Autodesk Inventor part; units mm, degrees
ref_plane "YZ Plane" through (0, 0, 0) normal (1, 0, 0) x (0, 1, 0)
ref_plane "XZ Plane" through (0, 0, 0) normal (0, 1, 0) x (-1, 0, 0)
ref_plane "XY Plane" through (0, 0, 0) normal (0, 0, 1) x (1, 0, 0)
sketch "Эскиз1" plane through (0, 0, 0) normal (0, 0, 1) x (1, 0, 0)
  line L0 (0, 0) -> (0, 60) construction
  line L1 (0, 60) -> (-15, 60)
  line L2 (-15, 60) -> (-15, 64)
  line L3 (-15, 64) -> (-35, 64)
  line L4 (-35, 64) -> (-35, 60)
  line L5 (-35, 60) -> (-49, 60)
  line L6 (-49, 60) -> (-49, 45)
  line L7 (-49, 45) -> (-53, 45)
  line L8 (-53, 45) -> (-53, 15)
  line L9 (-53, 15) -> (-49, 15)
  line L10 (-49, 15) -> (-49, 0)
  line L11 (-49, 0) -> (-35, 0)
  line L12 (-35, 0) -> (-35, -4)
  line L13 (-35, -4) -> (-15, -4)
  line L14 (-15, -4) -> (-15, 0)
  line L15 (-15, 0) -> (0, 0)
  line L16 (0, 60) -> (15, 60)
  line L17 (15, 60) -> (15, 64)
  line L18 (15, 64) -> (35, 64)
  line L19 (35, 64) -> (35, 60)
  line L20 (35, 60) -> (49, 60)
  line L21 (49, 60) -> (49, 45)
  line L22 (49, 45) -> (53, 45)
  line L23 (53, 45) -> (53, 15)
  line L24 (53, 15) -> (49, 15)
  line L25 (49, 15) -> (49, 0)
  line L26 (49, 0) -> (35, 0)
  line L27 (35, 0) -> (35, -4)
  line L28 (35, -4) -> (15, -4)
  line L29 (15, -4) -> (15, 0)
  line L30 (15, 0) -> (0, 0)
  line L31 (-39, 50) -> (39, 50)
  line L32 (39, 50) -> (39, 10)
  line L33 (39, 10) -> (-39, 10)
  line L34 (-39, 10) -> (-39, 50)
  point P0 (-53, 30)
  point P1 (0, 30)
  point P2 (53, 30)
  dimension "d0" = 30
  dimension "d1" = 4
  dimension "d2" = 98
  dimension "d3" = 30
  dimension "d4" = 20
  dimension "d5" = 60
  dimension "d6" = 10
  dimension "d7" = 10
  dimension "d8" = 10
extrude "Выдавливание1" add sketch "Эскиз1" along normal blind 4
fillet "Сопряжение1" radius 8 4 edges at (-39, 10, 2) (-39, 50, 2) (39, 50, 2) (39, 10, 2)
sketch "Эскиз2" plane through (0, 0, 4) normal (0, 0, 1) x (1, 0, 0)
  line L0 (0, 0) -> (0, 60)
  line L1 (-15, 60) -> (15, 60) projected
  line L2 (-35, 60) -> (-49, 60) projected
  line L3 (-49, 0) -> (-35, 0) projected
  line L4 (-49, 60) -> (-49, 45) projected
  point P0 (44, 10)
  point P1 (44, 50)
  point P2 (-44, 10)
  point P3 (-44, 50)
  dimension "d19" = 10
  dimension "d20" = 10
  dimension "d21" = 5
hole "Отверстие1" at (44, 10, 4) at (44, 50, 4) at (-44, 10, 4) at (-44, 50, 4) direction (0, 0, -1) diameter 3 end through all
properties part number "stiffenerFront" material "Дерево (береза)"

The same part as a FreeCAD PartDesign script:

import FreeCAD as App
import Part
import Sketcher
from FreeCAD import Vector


def edges_at(feature, points):
    """Names of the edges that pass closest to the given points."""
    edges = feature.Shape.Edges
    near = lambda p: min(range(len(edges)), key=lambda i: edges[i].distToShape(Part.Vertex(*p))[0])
    return sorted({f"Edge{near(p) + 1}" for p in points})


def add_polygon(sketch, points):
    """Adds a closed chain of lines whose ends are joined by coincident constraints."""
    first, n = sketch.GeometryCount, len(points)
    for a, b in zip(points, points[1:] + points[:1]):
        sketch.addGeometry(Part.LineSegment(App.Vector(*a, 0), App.Vector(*b, 0)), False)
    for i in range(n):
        sketch.addConstraint(Sketcher.Constraint("Coincident", first + i, 2, first + (i + 1) % n, 1))

doc = App.newDocument("Part")
body = doc.addObject("PartDesign::Body", "Body")

sketch1 = body.newObject("Sketcher::SketchObject", "Sketch")
sketch1.AttachmentSupport = (doc.getObject("XY_Plane"), [""])
sketch1.MapMode = "FlatFace"
add_polygon(sketch1, [(15, 60), (-15, 60), (-15, 64), (-35, 64), (-35, 60), (-49, 60), (-49, 45), (-53, 45), (-53, 15), (-49, 15), (-49, 0), (-35, 0), (-35, -4), (-15, -4), (-15, 0), (15, 0), (15, -4), (35, -4), (35, 0), (49, 0), (49, 15), (53, 15), (53, 45), (49, 45), (49, 60), (35, 60), (35, 64), (15, 64)])
add_polygon(sketch1, [(-39, 10), (-39, 50), (39, 50), (39, 10)])
sketch1.addConstraint(Sketcher.Constraint("Horizontal", 0))
sketch1.addConstraint(Sketcher.Constraint("Vertical", 1))
sketch1.addConstraint(Sketcher.Constraint("Horizontal", 2))
sketch1.addConstraint(Sketcher.Constraint("Vertical", 3))
sketch1.addConstraint(Sketcher.Constraint("Horizontal", 4))
sketch1.addConstraint(Sketcher.Constraint("Vertical", 5))
sketch1.addConstraint(Sketcher.Constraint("Horizontal", 6))
sketch1.addConstraint(Sketcher.Constraint("Vertical", 7))
sketch1.addConstraint(Sketcher.Constraint("Horizontal", 8))
sketch1.addConstraint(Sketcher.Constraint("Vertical", 9))
sketch1.addConstraint(Sketcher.Constraint("Horizontal", 10))
sketch1.addConstraint(Sketcher.Constraint("Vertical", 11))
sketch1.addConstraint(Sketcher.Constraint("Horizontal", 12))
sketch1.addConstraint(Sketcher.Constraint("Vertical", 13))
sketch1.addConstraint(Sketcher.Constraint("Horizontal", 14))
sketch1.addConstraint(Sketcher.Constraint("Vertical", 15))
sketch1.addConstraint(Sketcher.Constraint("Horizontal", 16))
sketch1.addConstraint(Sketcher.Constraint("Vertical", 17))
sketch1.addConstraint(Sketcher.Constraint("Horizontal", 18))
sketch1.addConstraint(Sketcher.Constraint("Vertical", 19))
sketch1.addConstraint(Sketcher.Constraint("Horizontal", 20))
sketch1.addConstraint(Sketcher.Constraint("Vertical", 21))
sketch1.addConstraint(Sketcher.Constraint("Horizontal", 22))
sketch1.addConstraint(Sketcher.Constraint("Vertical", 23))
sketch1.addConstraint(Sketcher.Constraint("Horizontal", 24))
sketch1.addConstraint(Sketcher.Constraint("Vertical", 25))
sketch1.addConstraint(Sketcher.Constraint("Horizontal", 26))
sketch1.addConstraint(Sketcher.Constraint("Vertical", 27))
sketch1.addConstraint(Sketcher.Constraint("Vertical", 28))
sketch1.addConstraint(Sketcher.Constraint("Horizontal", 29))
sketch1.addConstraint(Sketcher.Constraint("Vertical", 30))
sketch1.addConstraint(Sketcher.Constraint("Horizontal", 31))
sketch1.addConstraint(Sketcher.Constraint("Symmetric", 13, 2, 14, 2, -1, 1))
sketch1.addConstraint(Sketcher.Constraint("Symmetric", 10, 2, 17, 2, -1, 1))
sketch1.addConstraint(Sketcher.Constraint("Symmetric", 9, 2, 18, 2, -2))
sketch1.addConstraint(Sketcher.Constraint("Symmetric", 7, 2, 20, 2, -2))
sketch1.addConstraint(Sketcher.Constraint("Symmetric", 5, 2, 22, 2, -2))
sketch1.addConstraint(Sketcher.Constraint("Symmetric", 3, 2, 24, 2, -2))
sketch1.addConstraint(Sketcher.Constraint("Symmetric", 1, 2, 26, 2, -2))
sketch1.addConstraint(Sketcher.Constraint("Horizontal", 0, 2, 3, 2))
sketch1.addConstraint(Sketcher.Constraint("Horizontal", 12, 2, 15, 2))
sketch1.addConstraint(Sketcher.Constraint("Vertical", 5, 2, 8, 2))
sketch1.addConstraint(Sketcher.Constraint("Vertical", 3, 2, 10, 2))
sketch1.addConstraint(Sketcher.Constraint("Vertical", 1, 2, 12, 2))
sketch1.addConstraint(Sketcher.Constraint("Equal", 22, 1))
sketch1.addConstraint(Sketcher.Constraint("Equal", 14, 7))
sketch1.addConstraint(Sketcher.Constraint("Equal", 5, 9))
sketch1.addConstraint(Sketcher.Constraint("Equal", 3, 11))
sketch1.addConstraint(Sketcher.Constraint("DistanceX", 0, 2, 0, 1, 30.0))
sketch1.addConstraint(Sketcher.Constraint("DistanceX", 2, 2, 2, 1, 20.0))
sketch1.addConstraint(Sketcher.Constraint("DistanceX", 6, 2, 6, 1, 4.0))
sketch1.addConstraint(Sketcher.Constraint("DistanceY", -1, 1, 0, 2, 60.0))
sketch1.addConstraint(Sketcher.Constraint("DistanceY", -1, 1, 30, 2, 10.0))
sketch1.addConstraint(Sketcher.Constraint("DistanceX", 28, 2, 3, 2, 4.0))
sketch1.addConstraint(Sketcher.Constraint("DistanceY", 28, 2, 3, 2, 10.0))
sketch1.addConstraint(Sketcher.Constraint("DistanceX", 5, 2, 28, 2, 10.0))
sketch1.addConstraint(Sketcher.Constraint("DistanceX", 24, 2, 29, 2, 4.0))
pad1 = body.newObject("PartDesign::Pad", "Pad")
pad1.Profile = sketch1
pad1.Length = 4
doc.recompute()

fillet = body.newObject("PartDesign::Fillet", "Fillet")
fillet.Base = (pad1, edges_at(pad1, [
    (-39, 10, 2),
    (-39, 50, 2),
    (39, 50, 2),
    (39, 10, 2),
]))
fillet.Radius = 8

sketch2 = body.newObject("Sketcher::SketchObject", "Sketch001")
sketch2.AttachmentSupport = (doc.getObject("XY_Plane"), [""])
sketch2.MapMode = "FlatFace"
sketch2.AttachmentOffset = App.Placement(Vector(0, 0, 4), App.Rotation())
sketch2.addGeometry(Part.Circle(Vector(44, 10, 0), Vector(0, 0, 1), 1.5), False)
sketch2.addGeometry(Part.Circle(Vector(44, 50, 0), Vector(0, 0, 1), 1.5), False)
sketch2.addGeometry(Part.Circle(Vector(-44, 10, 0), Vector(0, 0, 1), 1.5), False)
sketch2.addGeometry(Part.Circle(Vector(-44, 50, 0), Vector(0, 0, 1), 1.5), False)
sketch2.addConstraint(Sketcher.Constraint("Equal", 0, 1))
sketch2.addConstraint(Sketcher.Constraint("Equal", 1, 2))
sketch2.addConstraint(Sketcher.Constraint("Equal", 2, 3))
sketch2.addConstraint(Sketcher.Constraint("Symmetric", 0, 3, 2, 3, -2))
sketch2.addConstraint(Sketcher.Constraint("Symmetric", 1, 3, 3, 3, -2))
sketch2.addConstraint(Sketcher.Constraint("Vertical", 0, 3, 1, 3))
sketch2.addConstraint(Sketcher.Constraint("Diameter", 0, 3.0))
sketch2.addConstraint(Sketcher.Constraint("DistanceX", -1, 1, 0, 3, 44.0))
sketch2.addConstraint(Sketcher.Constraint("DistanceY", -1, 1, 0, 3, 10.0))
sketch2.addConstraint(Sketcher.Constraint("DistanceY", -1, 1, 1, 3, 50.0))
doc.recompute()
hole = body.newObject("PartDesign::Hole", "Hole")
hole.Profile = sketch2
hole.ThreadType = "None"
hole.Diameter = 3
hole.DepthType = "ThroughAll"

doc.recompute()
